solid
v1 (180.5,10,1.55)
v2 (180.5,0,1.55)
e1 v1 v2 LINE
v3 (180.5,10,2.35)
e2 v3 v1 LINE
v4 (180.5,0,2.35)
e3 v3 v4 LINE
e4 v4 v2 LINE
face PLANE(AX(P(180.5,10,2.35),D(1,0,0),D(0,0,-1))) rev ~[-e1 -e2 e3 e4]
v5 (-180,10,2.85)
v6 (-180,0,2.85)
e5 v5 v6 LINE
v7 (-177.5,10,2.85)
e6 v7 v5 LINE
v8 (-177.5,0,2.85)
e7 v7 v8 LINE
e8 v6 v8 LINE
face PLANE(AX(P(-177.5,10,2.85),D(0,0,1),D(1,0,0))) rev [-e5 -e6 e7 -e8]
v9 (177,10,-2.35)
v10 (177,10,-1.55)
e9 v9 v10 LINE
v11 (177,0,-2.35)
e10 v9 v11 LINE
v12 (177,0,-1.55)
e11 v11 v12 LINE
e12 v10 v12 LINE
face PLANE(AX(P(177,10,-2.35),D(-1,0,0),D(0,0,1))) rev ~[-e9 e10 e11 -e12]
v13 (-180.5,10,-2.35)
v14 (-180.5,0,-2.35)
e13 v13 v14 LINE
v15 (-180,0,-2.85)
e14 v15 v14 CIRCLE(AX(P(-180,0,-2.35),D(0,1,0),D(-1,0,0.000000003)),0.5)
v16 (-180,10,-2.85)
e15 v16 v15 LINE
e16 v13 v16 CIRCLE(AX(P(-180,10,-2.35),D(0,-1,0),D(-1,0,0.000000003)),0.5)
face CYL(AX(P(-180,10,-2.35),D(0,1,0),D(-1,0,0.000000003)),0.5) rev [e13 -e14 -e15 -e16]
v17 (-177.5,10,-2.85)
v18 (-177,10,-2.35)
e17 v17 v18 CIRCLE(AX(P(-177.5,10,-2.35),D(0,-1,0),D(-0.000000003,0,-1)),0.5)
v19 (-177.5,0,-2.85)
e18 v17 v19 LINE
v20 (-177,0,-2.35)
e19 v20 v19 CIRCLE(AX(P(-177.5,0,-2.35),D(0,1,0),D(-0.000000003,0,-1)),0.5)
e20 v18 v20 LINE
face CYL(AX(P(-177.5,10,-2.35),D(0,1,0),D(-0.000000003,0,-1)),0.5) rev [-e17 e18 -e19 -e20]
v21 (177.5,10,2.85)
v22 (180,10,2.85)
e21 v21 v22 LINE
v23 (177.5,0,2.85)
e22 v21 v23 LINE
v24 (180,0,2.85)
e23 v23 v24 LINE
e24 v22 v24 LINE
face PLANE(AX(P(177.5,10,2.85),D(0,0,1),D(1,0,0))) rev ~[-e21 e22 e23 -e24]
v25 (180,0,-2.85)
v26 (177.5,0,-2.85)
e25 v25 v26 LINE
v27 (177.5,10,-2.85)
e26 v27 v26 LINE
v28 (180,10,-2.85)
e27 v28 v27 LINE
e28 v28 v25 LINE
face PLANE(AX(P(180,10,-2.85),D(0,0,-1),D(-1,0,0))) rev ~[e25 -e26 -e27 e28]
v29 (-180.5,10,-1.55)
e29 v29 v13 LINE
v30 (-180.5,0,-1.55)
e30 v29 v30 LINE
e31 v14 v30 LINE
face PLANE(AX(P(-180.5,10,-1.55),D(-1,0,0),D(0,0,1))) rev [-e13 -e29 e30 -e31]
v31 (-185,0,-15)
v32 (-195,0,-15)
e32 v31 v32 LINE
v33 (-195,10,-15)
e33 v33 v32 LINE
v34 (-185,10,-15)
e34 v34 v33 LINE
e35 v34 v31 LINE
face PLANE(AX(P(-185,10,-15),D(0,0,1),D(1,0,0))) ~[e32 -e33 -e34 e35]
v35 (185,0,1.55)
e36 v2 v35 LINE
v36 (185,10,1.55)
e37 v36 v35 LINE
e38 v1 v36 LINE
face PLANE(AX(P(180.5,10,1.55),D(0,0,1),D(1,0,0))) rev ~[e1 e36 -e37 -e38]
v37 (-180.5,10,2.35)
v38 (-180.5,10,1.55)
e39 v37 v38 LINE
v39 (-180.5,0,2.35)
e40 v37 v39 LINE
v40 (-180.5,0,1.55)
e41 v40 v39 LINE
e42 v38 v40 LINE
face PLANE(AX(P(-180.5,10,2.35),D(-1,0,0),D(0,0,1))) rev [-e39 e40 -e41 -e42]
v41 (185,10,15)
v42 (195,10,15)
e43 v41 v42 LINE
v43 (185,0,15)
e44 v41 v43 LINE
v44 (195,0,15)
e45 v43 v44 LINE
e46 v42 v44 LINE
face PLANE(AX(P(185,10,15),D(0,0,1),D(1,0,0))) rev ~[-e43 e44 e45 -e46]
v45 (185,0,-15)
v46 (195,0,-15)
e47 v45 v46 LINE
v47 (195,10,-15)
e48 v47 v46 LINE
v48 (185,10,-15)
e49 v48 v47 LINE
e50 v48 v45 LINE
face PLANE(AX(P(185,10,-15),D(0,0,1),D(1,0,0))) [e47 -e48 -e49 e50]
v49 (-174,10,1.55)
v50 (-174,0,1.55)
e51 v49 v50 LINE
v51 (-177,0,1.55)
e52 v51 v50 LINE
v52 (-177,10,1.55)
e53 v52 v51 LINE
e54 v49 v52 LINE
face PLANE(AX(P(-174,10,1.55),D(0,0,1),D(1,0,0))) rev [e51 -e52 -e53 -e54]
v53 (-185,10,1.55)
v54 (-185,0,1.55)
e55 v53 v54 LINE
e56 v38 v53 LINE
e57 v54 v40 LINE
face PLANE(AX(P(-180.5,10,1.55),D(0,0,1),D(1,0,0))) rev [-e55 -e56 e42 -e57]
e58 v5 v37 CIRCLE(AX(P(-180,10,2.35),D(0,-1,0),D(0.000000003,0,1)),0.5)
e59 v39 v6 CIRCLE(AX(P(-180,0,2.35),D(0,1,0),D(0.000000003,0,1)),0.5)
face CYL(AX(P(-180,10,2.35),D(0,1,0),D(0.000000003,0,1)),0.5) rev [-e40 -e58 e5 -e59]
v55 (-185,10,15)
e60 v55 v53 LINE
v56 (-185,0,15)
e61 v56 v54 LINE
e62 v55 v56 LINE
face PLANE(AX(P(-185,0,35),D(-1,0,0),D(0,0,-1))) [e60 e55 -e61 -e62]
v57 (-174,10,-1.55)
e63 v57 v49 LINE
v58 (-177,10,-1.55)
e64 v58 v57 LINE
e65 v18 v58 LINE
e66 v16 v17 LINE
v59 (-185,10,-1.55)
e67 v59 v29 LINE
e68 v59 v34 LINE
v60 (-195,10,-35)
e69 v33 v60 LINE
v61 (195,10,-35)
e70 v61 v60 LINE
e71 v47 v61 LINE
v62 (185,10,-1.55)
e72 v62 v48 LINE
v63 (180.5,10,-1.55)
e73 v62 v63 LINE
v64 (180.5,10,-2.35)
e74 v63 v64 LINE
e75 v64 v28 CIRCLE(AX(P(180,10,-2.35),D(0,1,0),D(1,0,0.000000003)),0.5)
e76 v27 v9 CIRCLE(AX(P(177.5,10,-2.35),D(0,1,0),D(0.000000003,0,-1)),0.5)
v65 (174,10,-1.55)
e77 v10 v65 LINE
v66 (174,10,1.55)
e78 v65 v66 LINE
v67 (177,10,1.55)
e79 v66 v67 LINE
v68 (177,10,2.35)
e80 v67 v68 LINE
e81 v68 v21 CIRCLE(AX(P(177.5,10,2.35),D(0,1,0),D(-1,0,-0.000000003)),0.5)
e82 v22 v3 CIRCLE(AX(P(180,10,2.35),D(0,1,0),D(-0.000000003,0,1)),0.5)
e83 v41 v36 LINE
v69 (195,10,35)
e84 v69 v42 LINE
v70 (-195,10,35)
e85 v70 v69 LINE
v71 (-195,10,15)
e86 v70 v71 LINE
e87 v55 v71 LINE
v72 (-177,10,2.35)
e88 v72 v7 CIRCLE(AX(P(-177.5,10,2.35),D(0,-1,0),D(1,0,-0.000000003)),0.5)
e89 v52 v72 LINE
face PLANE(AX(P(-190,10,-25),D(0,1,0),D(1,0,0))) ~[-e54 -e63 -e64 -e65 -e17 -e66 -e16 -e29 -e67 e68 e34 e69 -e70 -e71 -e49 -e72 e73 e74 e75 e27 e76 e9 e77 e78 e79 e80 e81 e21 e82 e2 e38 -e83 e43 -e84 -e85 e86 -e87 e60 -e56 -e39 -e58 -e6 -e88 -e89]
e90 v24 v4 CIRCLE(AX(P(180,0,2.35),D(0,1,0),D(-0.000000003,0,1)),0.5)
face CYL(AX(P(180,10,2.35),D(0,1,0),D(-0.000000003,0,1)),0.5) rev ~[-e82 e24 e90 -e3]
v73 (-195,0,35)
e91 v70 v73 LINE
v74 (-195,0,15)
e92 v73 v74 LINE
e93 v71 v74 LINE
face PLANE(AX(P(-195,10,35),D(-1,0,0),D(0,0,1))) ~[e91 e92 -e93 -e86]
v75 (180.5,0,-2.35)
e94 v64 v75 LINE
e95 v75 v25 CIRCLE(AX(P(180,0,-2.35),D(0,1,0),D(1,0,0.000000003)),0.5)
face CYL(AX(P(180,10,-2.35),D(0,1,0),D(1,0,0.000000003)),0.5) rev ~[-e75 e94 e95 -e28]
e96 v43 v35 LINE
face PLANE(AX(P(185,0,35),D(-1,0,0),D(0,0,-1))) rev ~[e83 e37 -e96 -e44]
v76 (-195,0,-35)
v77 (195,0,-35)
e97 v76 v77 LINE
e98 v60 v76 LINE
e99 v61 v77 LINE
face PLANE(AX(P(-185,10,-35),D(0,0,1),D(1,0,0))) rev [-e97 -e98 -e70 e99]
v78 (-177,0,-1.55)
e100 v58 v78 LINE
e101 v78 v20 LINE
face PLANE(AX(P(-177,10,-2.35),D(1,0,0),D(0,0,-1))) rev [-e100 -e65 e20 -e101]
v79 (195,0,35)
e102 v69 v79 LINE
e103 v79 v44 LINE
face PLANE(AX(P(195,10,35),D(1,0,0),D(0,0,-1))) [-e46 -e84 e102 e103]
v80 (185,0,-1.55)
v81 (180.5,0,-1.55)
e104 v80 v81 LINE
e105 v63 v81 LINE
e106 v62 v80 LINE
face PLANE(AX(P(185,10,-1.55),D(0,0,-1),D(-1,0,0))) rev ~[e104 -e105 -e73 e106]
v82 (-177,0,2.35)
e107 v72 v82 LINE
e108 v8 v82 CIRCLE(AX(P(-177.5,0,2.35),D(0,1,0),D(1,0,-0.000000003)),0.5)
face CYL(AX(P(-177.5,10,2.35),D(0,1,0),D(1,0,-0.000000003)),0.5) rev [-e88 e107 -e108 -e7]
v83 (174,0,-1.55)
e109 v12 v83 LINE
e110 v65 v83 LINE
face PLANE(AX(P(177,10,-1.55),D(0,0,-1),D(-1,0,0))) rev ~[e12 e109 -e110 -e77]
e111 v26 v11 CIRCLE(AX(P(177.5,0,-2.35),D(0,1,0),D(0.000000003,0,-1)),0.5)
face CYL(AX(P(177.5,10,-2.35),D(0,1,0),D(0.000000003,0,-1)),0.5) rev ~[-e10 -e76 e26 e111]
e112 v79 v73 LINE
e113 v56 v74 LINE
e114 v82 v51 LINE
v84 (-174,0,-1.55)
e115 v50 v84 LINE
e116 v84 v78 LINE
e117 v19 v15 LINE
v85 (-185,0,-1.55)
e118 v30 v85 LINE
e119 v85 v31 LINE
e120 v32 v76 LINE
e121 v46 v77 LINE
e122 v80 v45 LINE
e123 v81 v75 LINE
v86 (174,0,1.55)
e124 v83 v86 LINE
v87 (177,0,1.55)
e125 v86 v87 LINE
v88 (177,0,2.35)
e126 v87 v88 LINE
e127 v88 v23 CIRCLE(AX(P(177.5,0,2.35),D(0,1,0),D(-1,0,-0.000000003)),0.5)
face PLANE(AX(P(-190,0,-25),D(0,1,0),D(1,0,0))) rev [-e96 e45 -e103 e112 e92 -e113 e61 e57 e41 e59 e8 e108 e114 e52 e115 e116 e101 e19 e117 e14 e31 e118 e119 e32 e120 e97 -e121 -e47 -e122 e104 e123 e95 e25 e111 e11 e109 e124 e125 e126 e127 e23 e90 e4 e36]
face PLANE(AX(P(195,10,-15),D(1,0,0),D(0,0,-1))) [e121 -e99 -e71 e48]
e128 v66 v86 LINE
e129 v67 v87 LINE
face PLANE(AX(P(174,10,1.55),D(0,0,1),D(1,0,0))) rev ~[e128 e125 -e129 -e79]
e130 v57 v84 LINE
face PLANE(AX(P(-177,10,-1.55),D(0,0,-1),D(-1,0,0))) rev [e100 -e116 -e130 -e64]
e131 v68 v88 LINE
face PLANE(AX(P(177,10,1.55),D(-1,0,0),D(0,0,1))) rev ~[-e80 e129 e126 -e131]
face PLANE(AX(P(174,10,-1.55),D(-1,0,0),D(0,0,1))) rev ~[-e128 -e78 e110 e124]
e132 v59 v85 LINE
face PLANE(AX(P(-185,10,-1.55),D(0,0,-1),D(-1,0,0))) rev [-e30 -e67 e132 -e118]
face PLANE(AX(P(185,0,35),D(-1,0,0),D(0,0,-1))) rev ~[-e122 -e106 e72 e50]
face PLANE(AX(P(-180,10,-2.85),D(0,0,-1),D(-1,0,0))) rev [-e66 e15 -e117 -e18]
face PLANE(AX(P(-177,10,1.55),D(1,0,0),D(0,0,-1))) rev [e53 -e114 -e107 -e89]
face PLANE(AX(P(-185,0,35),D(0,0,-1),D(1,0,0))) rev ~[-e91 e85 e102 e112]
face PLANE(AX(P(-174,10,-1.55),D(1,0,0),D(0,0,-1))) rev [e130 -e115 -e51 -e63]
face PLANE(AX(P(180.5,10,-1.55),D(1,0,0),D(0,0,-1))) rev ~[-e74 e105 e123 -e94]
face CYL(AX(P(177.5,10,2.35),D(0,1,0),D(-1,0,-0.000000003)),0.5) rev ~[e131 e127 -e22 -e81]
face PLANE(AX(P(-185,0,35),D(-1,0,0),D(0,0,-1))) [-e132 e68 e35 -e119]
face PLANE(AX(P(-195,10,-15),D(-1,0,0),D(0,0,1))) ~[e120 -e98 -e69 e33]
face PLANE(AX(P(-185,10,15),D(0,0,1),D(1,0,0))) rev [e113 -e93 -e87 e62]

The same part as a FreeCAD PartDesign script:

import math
import FreeCAD as App
import Part
import Sketcher

doc = App.newDocument("Part")
params = doc.addObject("Spreadsheet::Sheet", "Params")
for row, (alias, value) in enumerate([
    ("sketch1_width", "370 mm"),
    ("sketch1_height", "70 mm"),
    ("pad1_length", "10 mm"),
    ("sketch2_width", "10 mm"),
    ("sketch2_height", "20 mm"),
    ("pad2_length", "10 mm"),
    ("sketch3_radius", "0.5 mm"),
    ("sketch3_width", "3 mm"),
    ("sketch3_width2", "4.5 mm"),
    ("sketch3_width3", "2.5 mm"),
    ("sketch3_height", "3.1 mm"),
], start=1):
    params.set(f"A{row}", alias)
    params.set(f"B{row}", "=" + value)
    params.setAlias(f"B{row}", alias)

body = doc.addObject("PartDesign::Body", "Body")

# Sketch on XZ plane
sketch1 = doc.addObject("Sketcher::SketchObject", "Sketch")
body.addObject(sketch1)
sketch1.AttachmentSupport = (doc.XZ_Plane, [""])
sketch1.MapMode = "FlatFace"
sketch1.addGeometry([
    Part.LineSegment(App.Vector(-185, -35, 0), App.Vector(-185, 35, 0)),
    Part.LineSegment(App.Vector(-185, 35, 0), App.Vector(185, 35, 0)),
    Part.LineSegment(App.Vector(185, 35, 0), App.Vector(185, -35, 0)),
    Part.LineSegment(App.Vector(185, -35, 0), App.Vector(-185, -35, 0)),
], False)
sketch1.addConstraint([
    Sketcher.Constraint("Coincident", 0, 2, 1, 1),
    Sketcher.Constraint("Coincident", 1, 2, 2, 1),
    Sketcher.Constraint("Coincident", 2, 2, 3, 1),
    Sketcher.Constraint("Coincident", 3, 2, 0, 1),
    Sketcher.Constraint("Vertical", 0),
    Sketcher.Constraint("Horizontal", 1),
    Sketcher.Constraint("Vertical", 2),
    Sketcher.Constraint("Horizontal", 3),
    Sketcher.Constraint("Symmetric", 0, 2, 2, 2, -1, 1),
    Sketcher.Constraint("DistanceX", 1, 1, 1, 2, 370.0),
    Sketcher.Constraint("DistanceY", 0, 1, 0, 2, 70.0),
])
sketch1.setExpression("Constraints[9]", "Params.sketch1_width")
sketch1.setExpression("Constraints[10]", "Params.sketch1_height")
pad1 = doc.addObject("PartDesign::Pad", "Pad")
body.addObject(pad1)
pad1.Profile = sketch1
pad1.setExpression("Length", "Params.pad1_length")
pad1.Reversed = True

# Sketch on XZ plane
sketch2 = doc.addObject("Sketcher::SketchObject", "Sketch001")
body.addObject(sketch2)
sketch2.AttachmentSupport = (doc.XZ_Plane, [""])
sketch2.MapMode = "FlatFace"
sketch2.AttachmentOffset = App.Placement(App.Vector(0, 0, -10), App.Rotation())
sketch2.addGeometry([
    Part.LineSegment(App.Vector(185, -35, 0), App.Vector(185, -15, 0)),  # 0
    Part.LineSegment(App.Vector(185, -15, 0), App.Vector(195, -15, 0)),  # 1
    Part.LineSegment(App.Vector(195, -15, 0), App.Vector(195, -35, 0)),  # 2
    Part.LineSegment(App.Vector(195, -35, 0), App.Vector(185, -35, 0)),  # 3
    Part.LineSegment(App.Vector(185, 15, 0), App.Vector(185, 35, 0)),  # 4
    Part.LineSegment(App.Vector(185, 35, 0), App.Vector(195, 35, 0)),  # 5
    Part.LineSegment(App.Vector(195, 35, 0), App.Vector(195, 15, 0)),  # 6
    Part.LineSegment(App.Vector(195, 15, 0), App.Vector(185, 15, 0)),  # 7
], False)
sketch2.addConstraint([
    Sketcher.Constraint("Coincident", 0, 2, 1, 1),
    Sketcher.Constraint("Coincident", 1, 2, 2, 1),
    Sketcher.Constraint("Coincident", 2, 2, 3, 1),
    Sketcher.Constraint("Coincident", 3, 2, 0, 1),
    Sketcher.Constraint("Coincident", 4, 2, 5, 1),
    Sketcher.Constraint("Coincident", 5, 2, 6, 1),
    Sketcher.Constraint("Coincident", 6, 2, 7, 1),
    Sketcher.Constraint("Coincident", 7, 2, 4, 1),
    Sketcher.Constraint("Vertical", 0),
    Sketcher.Constraint("Horizontal", 1),
    Sketcher.Constraint("Vertical", 2),
    Sketcher.Constraint("Horizontal", 3),
    Sketcher.Constraint("Vertical", 4),
    Sketcher.Constraint("Horizontal", 5),
    Sketcher.Constraint("Vertical", 6),
    Sketcher.Constraint("Horizontal", 7),
    Sketcher.Constraint("Symmetric", 3, 2, 4, 2, -1),
    Sketcher.Constraint("Symmetric", 1, 2, 6, 2, -1),
    Sketcher.Constraint("DistanceX", 1, 1, 1, 2, 10.0),
    Sketcher.Constraint("DistanceY", 0, 1, 0, 2, 20.0),
    Sketcher.Constraint("DistanceX", -1, 1, 0, 2, 185.0),
    Sketcher.Constraint("DistanceY", 0, 2, -1, 1, 15.0),
])
sketch2.setExpression("Constraints[18]", "Params.sketch2_width")
sketch2.setExpression("Constraints[19]", "Params.sketch2_height")
pad2 = doc.addObject("PartDesign::Pad", "Pad001")
body.addObject(pad2)
pad2.Profile = sketch2
pad2.setExpression("Length", "Params.pad2_length")

# Sketch on XZ plane
sketch3 = doc.addObject("Sketcher::SketchObject", "Sketch002")
body.addObject(sketch3)
sketch3.AttachmentSupport = (doc.XZ_Plane, [""])
sketch3.MapMode = "FlatFace"
sketch3.AttachmentOffset = App.Placement(App.Vector(0, 0, -10), App.Rotation())
sketch3.addGeometry([
    Part.LineSegment(App.Vector(185, 1.55, 0), App.Vector(185, -1.55, 0)),  # 0
    Part.LineSegment(App.Vector(185, -1.55, 0), App.Vector(180.5, -1.55, 0)),  # 1
    Part.LineSegment(App.Vector(180.5, -1.55, 0), App.Vector(180.5, -2.35, 0)),  # 2
    Part.ArcOfCircle(Part.Circle(App.Vector(180, -2.35, 0), App.Vector(0, 0, 1), 0.5), math.radians(-90), math.radians(0)),  # 3
    Part.LineSegment(App.Vector(180, -2.85, 0), App.Vector(177.5, -2.85, 0)),  # 4
    Part.ArcOfCircle(Part.Circle(App.Vector(177.5, -2.35, 0), App.Vector(0, 0, 1), 0.5), math.radians(180), math.radians(270)),  # 5
    Part.LineSegment(App.Vector(177, -2.35, 0), App.Vector(177, -1.55, 0)),  # 6
    Part.LineSegment(App.Vector(177, -1.55, 0), App.Vector(174, -1.55, 0)),  # 7
    Part.LineSegment(App.Vector(174, -1.55, 0), App.Vector(174, 1.55, 0)),  # 8
    Part.LineSegment(App.Vector(174, 1.55, 0), App.Vector(177, 1.55, 0)),  # 9
    Part.LineSegment(App.Vector(177, 1.55, 0), App.Vector(177, 2.35, 0)),  # 10
    Part.ArcOfCircle(Part.Circle(App.Vector(177.5, 2.35, 0), App.Vector(0, 0, 1), 0.5), math.radians(90), math.radians(180)),  # 11
    Part.LineSegment(App.Vector(177.5, 2.85, 0), App.Vector(180, 2.85, 0)),  # 12
    Part.ArcOfCircle(Part.Circle(App.Vector(180, 2.35, 0), App.Vector(0, 0, 1), 0.5), math.radians(0), math.radians(90)),  # 13
    Part.LineSegment(App.Vector(180.5, 2.35, 0), App.Vector(180.5, 1.55, 0)),  # 14
    Part.LineSegment(App.Vector(180.5, 1.55, 0), App.Vector(185, 1.55, 0)),  # 15
], False)
sketch3.addConstraint([
    Sketcher.Constraint("Coincident", 0, 2, 1, 1),
    Sketcher.Constraint("Coincident", 1, 2, 2, 1),
    Sketcher.Constraint("Tangent", 2, 2, 3, 2),
    Sketcher.Constraint("Tangent", 3, 1, 4, 1),
    Sketcher.Constraint("Tangent", 4, 2, 5, 2),
    Sketcher.Constraint("Tangent", 5, 1, 6, 1),
    Sketcher.Constraint("Coincident", 6, 2, 7, 1),
    Sketcher.Constraint("Coincident", 7, 2, 8, 1),
    Sketcher.Constraint("Coincident", 8, 2, 9, 1),
    Sketcher.Constraint("Coincident", 9, 2, 10, 1),
    Sketcher.Constraint("Tangent", 10, 2, 11, 2),
    Sketcher.Constraint("Tangent", 11, 1, 12, 1),
    Sketcher.Constraint("Tangent", 12, 2, 13, 2),
    Sketcher.Constraint("Tangent", 13, 1, 14, 1),
    Sketcher.Constraint("Coincident", 14, 2, 15, 1),
    Sketcher.Constraint("Coincident", 15, 2, 0, 1),
    Sketcher.Constraint("Vertical", 0),
    Sketcher.Constraint("Horizontal", 1),
    Sketcher.Constraint("Vertical", 2),
    Sketcher.Constraint("Horizontal", 4),
    Sketcher.Constraint("Vertical", 6),
    Sketcher.Constraint("Horizontal", 7),
    Sketcher.Constraint("Vertical", 8),
    Sketcher.Constraint("Horizontal", 9),
    Sketcher.Constraint("Vertical", 10),
    Sketcher.Constraint("Horizontal", 12),
    Sketcher.Constraint("Vertical", 14),
    Sketcher.Constraint("Horizontal", 15),
    Sketcher.Constraint("Equal", 3, 5),
    Sketcher.Constraint("Equal", 5, 11),
    Sketcher.Constraint("Equal", 11, 13),
    Sketcher.Constraint("Symmetric", 5, 3, 11, 3, -1),
    Sketcher.Constraint("Symmetric", 1, 2, 14, 2, -1),
    Sketcher.Constraint("Horizontal", 1, 2, 6, 2),
    Sketcher.Constraint("Horizontal", 9, 2, 14, 2),
    Sketcher.Constraint("Radius", 3, 0.5),
    Sketcher.Constraint("DistanceX", 7, 2, 7, 1, 3.0),
    Sketcher.Constraint("DistanceX", 1, 2, 1, 1, 4.5),
    Sketcher.Constraint("DistanceX", 4, 2, 4, 1, 2.5),
    Sketcher.Constraint("DistanceY", 0, 2, 0, 1, 3.1),
    Sketcher.Constraint("DistanceY", 2, 2, 2, 1, 0.8),
    Sketcher.Constraint("DistanceX", -1, 1, 3, 3, 180.0),
])
sketch3.setExpression("Constraints[35]", "Params.sketch3_radius")
sketch3.setExpression("Constraints[36]", "Params.sketch3_width")
sketch3.setExpression("Constraints[37]", "Params.sketch3_width2")
sketch3.setExpression("Constraints[38]", "Params.sketch3_width3")
sketch3.setExpression("Constraints[39]", "Params.sketch3_height")
pocket1 = doc.addObject("PartDesign::Pocket", "Pocket")
body.addObject(pocket1)
pocket1.Profile = sketch3
pocket1.Type = "ThroughAll"
pocket1.Reversed = True
doc.recompute()

mirrored = doc.addObject("PartDesign::Mirrored", "Mirrored")
body.addObject(mirrored)
mirrored.Originals = [pad2, pocket1]
mirrored.MirrorPlane = (doc.YZ_Plane, [""])
body.Tip = mirrored

doc.recompute()
